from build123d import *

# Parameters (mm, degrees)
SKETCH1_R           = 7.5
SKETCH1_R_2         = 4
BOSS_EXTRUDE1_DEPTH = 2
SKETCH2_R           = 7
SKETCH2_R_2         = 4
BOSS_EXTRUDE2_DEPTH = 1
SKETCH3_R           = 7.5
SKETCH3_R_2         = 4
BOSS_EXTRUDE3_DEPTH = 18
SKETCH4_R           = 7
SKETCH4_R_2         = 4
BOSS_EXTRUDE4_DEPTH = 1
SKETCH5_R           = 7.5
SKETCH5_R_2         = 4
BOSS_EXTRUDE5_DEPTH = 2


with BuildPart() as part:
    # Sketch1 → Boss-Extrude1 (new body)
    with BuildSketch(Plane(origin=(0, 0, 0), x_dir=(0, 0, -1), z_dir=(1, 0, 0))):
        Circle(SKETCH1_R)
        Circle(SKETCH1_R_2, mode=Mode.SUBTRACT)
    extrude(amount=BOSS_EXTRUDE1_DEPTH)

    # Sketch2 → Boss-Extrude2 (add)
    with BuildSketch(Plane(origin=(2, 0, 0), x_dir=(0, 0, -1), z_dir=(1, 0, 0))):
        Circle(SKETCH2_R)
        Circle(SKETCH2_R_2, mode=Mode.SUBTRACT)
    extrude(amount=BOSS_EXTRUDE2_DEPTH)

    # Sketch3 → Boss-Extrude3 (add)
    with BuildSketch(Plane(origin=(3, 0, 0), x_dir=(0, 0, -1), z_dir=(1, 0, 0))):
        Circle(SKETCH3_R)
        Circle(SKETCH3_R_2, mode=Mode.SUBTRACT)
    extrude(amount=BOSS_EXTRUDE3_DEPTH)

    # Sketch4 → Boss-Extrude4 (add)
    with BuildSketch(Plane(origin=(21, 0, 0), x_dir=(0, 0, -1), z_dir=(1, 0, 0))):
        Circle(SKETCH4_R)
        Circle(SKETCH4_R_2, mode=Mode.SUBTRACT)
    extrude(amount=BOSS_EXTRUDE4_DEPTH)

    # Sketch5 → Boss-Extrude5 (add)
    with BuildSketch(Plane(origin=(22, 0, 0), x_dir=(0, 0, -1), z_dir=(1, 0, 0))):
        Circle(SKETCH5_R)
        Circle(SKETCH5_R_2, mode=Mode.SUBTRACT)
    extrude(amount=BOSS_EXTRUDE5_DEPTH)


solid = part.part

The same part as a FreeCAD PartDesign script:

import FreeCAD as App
import Part
import Sketcher

V = App.Vector
Q = App.Units.Quantity

doc = App.newDocument("Part")
body = doc.addObject("PartDesign::Body", "Body")

sketch1 = doc.addObject("Sketcher::SketchObject", "Sketch")
body.addObject(sketch1)
sketch1.AttachmentSupport = (doc.YZ_Plane, [""])
sketch1.MapMode = "FlatFace"
sketch1.addGeometry(Part.Circle(V(0, 0, 0), V(0, 0, 1), 7.5), False)
sketch1.addGeometry(Part.Circle(V(0, 0, 0), V(0, 0, 1), 4), False)
sketch1.addConstraint(Sketcher.Constraint("Coincident", 0, 3, -1, 1))
sketch1.addConstraint(Sketcher.Constraint("Coincident", 1, 3, -1, 1))
sketch1.addConstraint(Sketcher.Constraint("Diameter", 0, Q("15 mm")))
sketch1.addConstraint(Sketcher.Constraint("Diameter", 1, Q("8 mm")))
pad1 = doc.addObject("PartDesign::Pad", "Pad")
body.addObject(pad1)
pad1.Profile = sketch1
pad1.Length = 2

sketch2 = doc.addObject("Sketcher::SketchObject", "Sketch001")
body.addObject(sketch2)
sketch2.AttachmentSupport = (doc.YZ_Plane, [""])
sketch2.MapMode = "FlatFace"
sketch2.AttachmentOffset = App.Placement(V(0, 0, 2), App.Rotation())
sketch2.addGeometry(Part.Circle(V(0, 0, 0), V(0, 0, 1), 7), False)
sketch2.addGeometry(Part.Circle(V(0, 0, 0), V(0, 0, 1), 4), False)
sketch2.addConstraint(Sketcher.Constraint("Coincident", 0, 3, -1, 1))
sketch2.addConstraint(Sketcher.Constraint("Coincident", 1, 3, -1, 1))
sketch2.addConstraint(Sketcher.Constraint("Diameter", 0, Q("14 mm")))
sketch2.addConstraint(Sketcher.Constraint("Diameter", 1, Q("8 mm")))
pad2 = doc.addObject("PartDesign::Pad", "Pad001")
body.addObject(pad2)
pad2.Profile = sketch2
pad2.Length = 1

sketch3 = doc.addObject("Sketcher::SketchObject", "Sketch002")
body.addObject(sketch3)
sketch3.AttachmentSupport = (doc.YZ_Plane, [""])
sketch3.MapMode = "FlatFace"
sketch3.AttachmentOffset = App.Placement(V(0, 0, 3), App.Rotation())
sketch3.addGeometry(Part.Circle(V(0, 0, 0), V(0, 0, 1), 7.5), False)
sketch3.addGeometry(Part.Circle(V(0, 0, 0), V(0, 0, 1), 4), False)
sketch3.addConstraint(Sketcher.Constraint("Coincident", 0, 3, -1, 1))
sketch3.addConstraint(Sketcher.Constraint("Coincident", 1, 3, -1, 1))
sketch3.addConstraint(Sketcher.Constraint("Diameter", 0, Q("15 mm")))
sketch3.addConstraint(Sketcher.Constraint("Diameter", 1, Q("8 mm")))
pad3 = doc.addObject("PartDesign::Pad", "Pad002")
body.addObject(pad3)
pad3.Profile = sketch3
pad3.Length = 18

sketch4 = doc.addObject("Sketcher::SketchObject", "Sketch003")
body.addObject(sketch4)
sketch4.AttachmentSupport = (doc.YZ_Plane, [""])
sketch4.MapMode = "FlatFace"
sketch4.AttachmentOffset = App.Placement(V(0, 0, 21), App.Rotation())
sketch4.addGeometry(Part.Circle(V(0, 0, 0), V(0, 0, 1), 7), False)
sketch4.addGeometry(Part.Circle(V(0, 0, 0), V(0, 0, 1), 4), False)
sketch4.addConstraint(Sketcher.Constraint("Coincident", 0, 3, -1, 1))
sketch4.addConstraint(Sketcher.Constraint("Coincident", 1, 3, -1, 1))
sketch4.addConstraint(Sketcher.Constraint("Diameter", 0, Q("14 mm")))
sketch4.addConstraint(Sketcher.Constraint("Diameter", 1, Q("8 mm")))
pad4 = doc.addObject("PartDesign::Pad", "Pad003")
body.addObject(pad4)
pad4.Profile = sketch4
pad4.Length = 1

sketch5 = doc.addObject("Sketcher::SketchObject", "Sketch004")
body.addObject(sketch5)
sketch5.AttachmentSupport = (doc.YZ_Plane, [""])
sketch5.MapMode = "FlatFace"
sketch5.AttachmentOffset = App.Placement(V(0, 0, 22), App.Rotation())
sketch5.addGeometry(Part.Circle(V(0, 0, 0), V(0, 0, 1), 7.5), False)
sketch5.addGeometry(Part.Circle(V(0, 0, 0), V(0, 0, 1), 4), False)
sketch5.addConstraint(Sketcher.Constraint("Coincident", 0, 3, -1, 1))
sketch5.addConstraint(Sketcher.Constraint("Coincident", 1, 3, -1, 1))
sketch5.addConstraint(Sketcher.Constraint("Diameter", 0, Q("15 mm")))
sketch5.addConstraint(Sketcher.Constraint("Diameter", 1, Q("8 mm")))
pad5 = doc.addObject("PartDesign::Pad", "Pad004")
body.addObject(pad5)
pad5.Profile = sketch5
pad5.Length = 2

doc.recompute()
